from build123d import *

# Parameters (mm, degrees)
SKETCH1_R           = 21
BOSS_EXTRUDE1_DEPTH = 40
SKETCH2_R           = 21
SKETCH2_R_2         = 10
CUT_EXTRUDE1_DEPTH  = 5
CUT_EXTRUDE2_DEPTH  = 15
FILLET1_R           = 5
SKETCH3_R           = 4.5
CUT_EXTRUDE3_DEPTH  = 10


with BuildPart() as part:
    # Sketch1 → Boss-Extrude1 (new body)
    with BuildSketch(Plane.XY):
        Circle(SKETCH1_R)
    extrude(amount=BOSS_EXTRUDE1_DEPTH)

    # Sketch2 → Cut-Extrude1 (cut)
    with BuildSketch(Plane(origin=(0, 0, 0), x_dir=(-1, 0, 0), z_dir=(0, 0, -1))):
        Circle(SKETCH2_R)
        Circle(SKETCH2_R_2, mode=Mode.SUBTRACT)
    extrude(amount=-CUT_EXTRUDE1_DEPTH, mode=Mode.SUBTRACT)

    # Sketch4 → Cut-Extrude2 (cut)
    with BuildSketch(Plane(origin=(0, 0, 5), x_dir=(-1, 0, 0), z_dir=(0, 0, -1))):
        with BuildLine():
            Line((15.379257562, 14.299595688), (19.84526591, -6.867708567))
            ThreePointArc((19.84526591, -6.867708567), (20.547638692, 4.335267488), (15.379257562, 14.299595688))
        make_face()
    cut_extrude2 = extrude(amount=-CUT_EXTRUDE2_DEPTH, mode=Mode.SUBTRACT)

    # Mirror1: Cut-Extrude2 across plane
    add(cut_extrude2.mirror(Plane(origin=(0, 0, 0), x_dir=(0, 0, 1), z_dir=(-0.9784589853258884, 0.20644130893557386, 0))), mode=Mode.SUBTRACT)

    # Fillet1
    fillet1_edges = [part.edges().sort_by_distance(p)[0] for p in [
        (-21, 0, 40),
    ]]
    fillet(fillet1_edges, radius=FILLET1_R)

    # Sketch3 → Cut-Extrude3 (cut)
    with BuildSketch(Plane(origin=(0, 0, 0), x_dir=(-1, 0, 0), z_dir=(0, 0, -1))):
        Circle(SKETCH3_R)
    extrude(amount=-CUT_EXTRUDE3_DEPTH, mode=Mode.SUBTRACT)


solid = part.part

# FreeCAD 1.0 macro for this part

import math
import FreeCAD as App
import Part
import Sketcher


def edges_at(feature, points):
    """Names of the edges that pass closest to the given points."""
    edges = feature.Shape.Edges
    near = lambda p: min(range(len(edges)), key=lambda i: edges[i].distToShape(Part.Vertex(*p))[0])
    return sorted({f"Edge{near(p) + 1}" for p in points})

doc = App.newDocument("Part")
body = doc.addObject("PartDesign::Body", "Body")

sketch1 = doc.addObject("Sketcher::SketchObject", "Sketch")
body.addObject(sketch1)
sketch1.AttachmentSupport = (doc.XY_Plane, [""])
sketch1.MapMode = "FlatFace"
sketch1.addGeometry(Part.Circle(App.Vector(0, 0, 0), App.Vector(0, 0, 1), 21), False)
sketch1.addConstraint([
    Sketcher.Constraint("Coincident", 0, 3, -1, 1),
    Sketcher.Constraint("Diameter", 0, 42.0),
])
pad1 = doc.addObject("PartDesign::Pad", "Pad")
body.addObject(pad1)
pad1.Profile = sketch1
pad1.Length = 40

sketch2 = doc.addObject("Sketcher::SketchObject", "Sketch001")
body.addObject(sketch2)
sketch2.AttachmentSupport = (doc.XY_Plane, [""])
sketch2.MapMode = "FlatFace"
sketch2.addGeometry([
    Part.Circle(App.Vector(0, 0, 0), App.Vector(0, 0, 1), 21),
    Part.Circle(App.Vector(0, 0, 0), App.Vector(0, 0, 1), 10),
], False)
sketch2.addConstraint([
    Sketcher.Constraint("Coincident", 0, 3, -1, 1),
    Sketcher.Constraint("Coincident", 1, 3, -1, 1),
    Sketcher.Constraint("Diameter", 0, 42.0),
    Sketcher.Constraint("Diameter", 1, 20.0),
])
pocket1 = doc.addObject("PartDesign::Pocket", "Pocket")
body.addObject(pocket1)
pocket1.Profile = sketch2
pocket1.Length = 5
pocket1.Reversed = True

sketch3 = doc.addObject("Sketcher::SketchObject", "Sketch002")
body.addObject(sketch3)
sketch3.AttachmentSupport = (doc.XY_Plane, [""])
sketch3.MapMode = "FlatFace"
sketch3.AttachmentOffset = App.Placement(App.Vector(0, 0, 5), App.Rotation())
sketch3.addGeometry([
    Part.LineSegment(App.Vector(-15.379258, 14.299596, 0), App.Vector(-19.845266, -6.867709, 0)),
    Part.ArcOfCircle(Part.Circle(App.Vector(0, 0, 0), App.Vector(0, 0, 1), 21), math.radians(137.083396), math.radians(199.088834)),
], False)
sketch3.addConstraint([
    Sketcher.Constraint("Coincident", 0, 1, 1, 1),
    Sketcher.Constraint("Coincident", 1, 2, 0, 2),
    Sketcher.Constraint("Coincident", 1, 3, -1, 1),
    Sketcher.Constraint("Radius", 1, 21.0),
    Sketcher.Constraint("DistanceY", 1, 2, -1, 1, 6.867709),
    Sketcher.Constraint("DistanceX", 1, 2, 0, 1, 4.466008),
])
pocket2 = doc.addObject("PartDesign::Pocket", "Pocket001")
body.addObject(pocket2)
pocket2.Profile = sketch3
pocket2.Length = 15
pocket2.Reversed = True
doc.recompute()

datumplane = doc.addObject("PartDesign::Plane", "DatumPlane")
body.addObject(datumplane)
datumplane.Placement = App.Placement(App.Vector(0, 0, 0), App.Rotation(App.Vector(0.206441309, 0.978458985, 0), App.Vector(0, 0, -1), App.Vector(-0.978458985, 0.206441309, 0), "ZXY"))
mirrored = doc.addObject("PartDesign::Mirrored", "Mirrored")
body.addObject(mirrored)
mirrored.Originals = [pocket2]
mirrored.MirrorPlane = (datumplane, [""])
body.Tip = mirrored
doc.recompute()

fillet = doc.addObject("PartDesign::Fillet", "Fillet")
body.addObject(fillet)
fillet.Base = (mirrored, edges_at(mirrored, [(-21, 0, 40)]))
fillet.Radius = 5

sketch4 = doc.addObject("Sketcher::SketchObject", "Sketch003")
body.addObject(sketch4)
sketch4.AttachmentSupport = (doc.XY_Plane, [""])
sketch4.MapMode = "FlatFace"
sketch4.addGeometry(Part.Circle(App.Vector(0, 0, 0), App.Vector(0, 0, 1), 4.5), False)
sketch4.addConstraint([
    Sketcher.Constraint("Coincident", 0, 3, -1, 1),
    Sketcher.Constraint("Diameter", 0, 9.0),
])
pocket3 = doc.addObject("PartDesign::Pocket", "Pocket002")
body.addObject(pocket3)
pocket3.Profile = sketch4
pocket3.Length = 10
pocket3.Reversed = True

doc.recompute()
